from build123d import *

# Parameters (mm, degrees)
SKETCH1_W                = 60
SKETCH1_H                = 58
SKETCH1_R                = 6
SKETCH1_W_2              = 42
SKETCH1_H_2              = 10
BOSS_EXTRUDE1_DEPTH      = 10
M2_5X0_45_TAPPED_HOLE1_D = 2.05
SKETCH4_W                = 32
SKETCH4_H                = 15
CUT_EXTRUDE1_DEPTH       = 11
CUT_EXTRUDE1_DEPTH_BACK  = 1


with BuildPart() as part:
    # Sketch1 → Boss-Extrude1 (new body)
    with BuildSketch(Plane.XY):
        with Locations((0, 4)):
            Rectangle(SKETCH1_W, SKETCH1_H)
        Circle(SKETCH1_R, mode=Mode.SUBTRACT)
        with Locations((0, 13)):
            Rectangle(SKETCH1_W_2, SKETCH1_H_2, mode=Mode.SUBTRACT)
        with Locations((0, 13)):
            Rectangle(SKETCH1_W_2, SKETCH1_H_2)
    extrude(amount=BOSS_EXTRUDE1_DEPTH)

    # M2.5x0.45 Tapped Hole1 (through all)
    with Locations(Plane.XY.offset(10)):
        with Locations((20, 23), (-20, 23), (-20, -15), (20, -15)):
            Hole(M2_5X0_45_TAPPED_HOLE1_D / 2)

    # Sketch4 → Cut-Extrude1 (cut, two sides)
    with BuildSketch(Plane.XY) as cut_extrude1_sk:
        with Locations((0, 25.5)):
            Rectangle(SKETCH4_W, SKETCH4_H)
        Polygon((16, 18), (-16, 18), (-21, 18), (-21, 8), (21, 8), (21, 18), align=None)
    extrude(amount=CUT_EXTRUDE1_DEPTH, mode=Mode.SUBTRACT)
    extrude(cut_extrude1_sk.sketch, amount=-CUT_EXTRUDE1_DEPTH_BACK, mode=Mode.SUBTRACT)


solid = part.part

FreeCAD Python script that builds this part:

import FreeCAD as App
import Part
import Sketcher
from FreeCAD import Vector
Q = App.Units.Quantity


def add_polygon(sketch, points):
    """Adds a closed chain of lines whose ends are joined by coincident constraints."""
    first, n = sketch.GeometryCount, len(points)
    for a, b in zip(points, points[1:] + points[:1]):
        sketch.addGeometry(Part.LineSegment(App.Vector(*a, 0), App.Vector(*b, 0)), False)
    for i in range(n):
        sketch.addConstraint(Sketcher.Constraint("Coincident", first + i, 2, first + (i + 1) % n, 1))

doc = App.newDocument("Part")
body = doc.addObject("PartDesign::Body", "Body")

sketch1 = body.newObject("Sketcher::SketchObject", "Sketch")
sketch1.AttachmentSupport = (doc.getObject("XY_Plane"), [""])
sketch1.MapMode = "FlatFace"
add_polygon(sketch1, [(-30, 33), (-30, -25), (30, -25), (30, 33)])
sketch1.addGeometry(Part.Circle(Vector(0, 0, 0), Vector(0, 0, 1), 6), False)
sketch1.addConstraint([
    Sketcher.Constraint("Vertical", 0),
    Sketcher.Constraint("Horizontal", 1),
    Sketcher.Constraint("Vertical", 2),
    Sketcher.Constraint("Horizontal", 3),
    Sketcher.Constraint("Coincident", 4, 3, -1, 1),
    Sketcher.Constraint("Diameter", 4, Q("12 mm")),
    Sketcher.Constraint("DistanceX", 1, 1, 1, 2, Q("60 mm")),
    Sketcher.Constraint("DistanceY", 0, 2, 0, 1, Q("58 mm")),
    Sketcher.Constraint("DistanceX", 0, 2, -1, 1, Q("30 mm")),
    Sketcher.Constraint("DistanceY", 0, 2, -1, 1, Q("25 mm")),
])
pad1 = body.newObject("PartDesign::Pad", "Pad")
pad1.Profile = sketch1
pad1.Length = 10

sketch2 = body.newObject("Sketcher::SketchObject", "Sketch001")
sketch2.AttachmentSupport = (doc.getObject("XY_Plane"), [""])
sketch2.MapMode = "FlatFace"
sketch2.AttachmentOffset = App.Placement(Vector(0, 0, 10), App.Rotation())
sketch2.addGeometry([
    Part.Circle(Vector(20, 23, 0), Vector(0, 0, 1), 1.025),
    Part.Circle(Vector(-20, 23, 0), Vector(0, 0, 1), 1.025),
    Part.Circle(Vector(-20, -15, 0), Vector(0, 0, 1), 1.025),
    Part.Circle(Vector(20, -15, 0), Vector(0, 0, 1), 1.025),
], False)
sketch2.addConstraint([
    Sketcher.Constraint("Equal", 0, 1),
    Sketcher.Constraint("Equal", 1, 2),
    Sketcher.Constraint("Equal", 2, 3),
    Sketcher.Constraint("Symmetric", 0, 3, 1, 3, -2),
    Sketcher.Constraint("Symmetric", 2, 3, 3, 3, -2),
    Sketcher.Constraint("Vertical", 1, 3, 2, 3),
    Sketcher.Constraint("Diameter", 0, Q("2.05 mm")),
    Sketcher.Constraint("DistanceX", -1, 1, 0, 3, Q("20 mm")),
    Sketcher.Constraint("DistanceY", -1, 1, 0, 3, Q("23 mm")),
    Sketcher.Constraint("DistanceY", 2, 3, -1, 1, Q("15 mm")),
])
doc.recompute()
hole = body.newObject("PartDesign::Hole", "Hole")
hole.Profile = sketch2
hole.ThreadType = "None"
hole.Diameter = 2.05
hole.DepthType = "ThroughAll"

sketch3 = body.newObject("Sketcher::SketchObject", "Sketch002")
sketch3.AttachmentSupport = (doc.getObject("XY_Plane"), [""])
sketch3.MapMode = "FlatFace"
add_polygon(sketch3, [(-16, 33), (-16, 18), (-21, 18), (-21, 8), (21, 8), (21, 18), (16, 18), (16, 33)])
sketch3.addConstraint([
    Sketcher.Constraint("Vertical", 0),
    Sketcher.Constraint("Horizontal", 1),
    Sketcher.Constraint("Vertical", 2),
    Sketcher.Constraint("Horizontal", 3),
    Sketcher.Constraint("Vertical", 4),
    Sketcher.Constraint("Horizontal", 5),
    Sketcher.Constraint("Vertical", 6),
    Sketcher.Constraint("Horizontal", 7),
    Sketcher.Constraint("Symmetric", 1, 2, 4, 2, -2),
    Sketcher.Constraint("Equal", 1, 5),
    Sketcher.Constraint("DistanceX", 1, 2, 1, 1, Q("5 mm")),
    Sketcher.Constraint("DistanceX", 3, 1, 3, 2, Q("42 mm")),
    Sketcher.Constraint("DistanceY", 0, 2, 0, 1, Q("15 mm")),
    Sketcher.Constraint("DistanceY", 2, 2, 2, 1, Q("10 mm")),
    Sketcher.Constraint("DistanceY", -1, 1, 0, 2, Q("18 mm")),
])
pocket1 = body.newObject("PartDesign::Pocket", "Pocket")
pocket1.Profile = sketch3
pocket1.Type = "ThroughAll"
pocket1.Midplane = True

doc.recompute()
